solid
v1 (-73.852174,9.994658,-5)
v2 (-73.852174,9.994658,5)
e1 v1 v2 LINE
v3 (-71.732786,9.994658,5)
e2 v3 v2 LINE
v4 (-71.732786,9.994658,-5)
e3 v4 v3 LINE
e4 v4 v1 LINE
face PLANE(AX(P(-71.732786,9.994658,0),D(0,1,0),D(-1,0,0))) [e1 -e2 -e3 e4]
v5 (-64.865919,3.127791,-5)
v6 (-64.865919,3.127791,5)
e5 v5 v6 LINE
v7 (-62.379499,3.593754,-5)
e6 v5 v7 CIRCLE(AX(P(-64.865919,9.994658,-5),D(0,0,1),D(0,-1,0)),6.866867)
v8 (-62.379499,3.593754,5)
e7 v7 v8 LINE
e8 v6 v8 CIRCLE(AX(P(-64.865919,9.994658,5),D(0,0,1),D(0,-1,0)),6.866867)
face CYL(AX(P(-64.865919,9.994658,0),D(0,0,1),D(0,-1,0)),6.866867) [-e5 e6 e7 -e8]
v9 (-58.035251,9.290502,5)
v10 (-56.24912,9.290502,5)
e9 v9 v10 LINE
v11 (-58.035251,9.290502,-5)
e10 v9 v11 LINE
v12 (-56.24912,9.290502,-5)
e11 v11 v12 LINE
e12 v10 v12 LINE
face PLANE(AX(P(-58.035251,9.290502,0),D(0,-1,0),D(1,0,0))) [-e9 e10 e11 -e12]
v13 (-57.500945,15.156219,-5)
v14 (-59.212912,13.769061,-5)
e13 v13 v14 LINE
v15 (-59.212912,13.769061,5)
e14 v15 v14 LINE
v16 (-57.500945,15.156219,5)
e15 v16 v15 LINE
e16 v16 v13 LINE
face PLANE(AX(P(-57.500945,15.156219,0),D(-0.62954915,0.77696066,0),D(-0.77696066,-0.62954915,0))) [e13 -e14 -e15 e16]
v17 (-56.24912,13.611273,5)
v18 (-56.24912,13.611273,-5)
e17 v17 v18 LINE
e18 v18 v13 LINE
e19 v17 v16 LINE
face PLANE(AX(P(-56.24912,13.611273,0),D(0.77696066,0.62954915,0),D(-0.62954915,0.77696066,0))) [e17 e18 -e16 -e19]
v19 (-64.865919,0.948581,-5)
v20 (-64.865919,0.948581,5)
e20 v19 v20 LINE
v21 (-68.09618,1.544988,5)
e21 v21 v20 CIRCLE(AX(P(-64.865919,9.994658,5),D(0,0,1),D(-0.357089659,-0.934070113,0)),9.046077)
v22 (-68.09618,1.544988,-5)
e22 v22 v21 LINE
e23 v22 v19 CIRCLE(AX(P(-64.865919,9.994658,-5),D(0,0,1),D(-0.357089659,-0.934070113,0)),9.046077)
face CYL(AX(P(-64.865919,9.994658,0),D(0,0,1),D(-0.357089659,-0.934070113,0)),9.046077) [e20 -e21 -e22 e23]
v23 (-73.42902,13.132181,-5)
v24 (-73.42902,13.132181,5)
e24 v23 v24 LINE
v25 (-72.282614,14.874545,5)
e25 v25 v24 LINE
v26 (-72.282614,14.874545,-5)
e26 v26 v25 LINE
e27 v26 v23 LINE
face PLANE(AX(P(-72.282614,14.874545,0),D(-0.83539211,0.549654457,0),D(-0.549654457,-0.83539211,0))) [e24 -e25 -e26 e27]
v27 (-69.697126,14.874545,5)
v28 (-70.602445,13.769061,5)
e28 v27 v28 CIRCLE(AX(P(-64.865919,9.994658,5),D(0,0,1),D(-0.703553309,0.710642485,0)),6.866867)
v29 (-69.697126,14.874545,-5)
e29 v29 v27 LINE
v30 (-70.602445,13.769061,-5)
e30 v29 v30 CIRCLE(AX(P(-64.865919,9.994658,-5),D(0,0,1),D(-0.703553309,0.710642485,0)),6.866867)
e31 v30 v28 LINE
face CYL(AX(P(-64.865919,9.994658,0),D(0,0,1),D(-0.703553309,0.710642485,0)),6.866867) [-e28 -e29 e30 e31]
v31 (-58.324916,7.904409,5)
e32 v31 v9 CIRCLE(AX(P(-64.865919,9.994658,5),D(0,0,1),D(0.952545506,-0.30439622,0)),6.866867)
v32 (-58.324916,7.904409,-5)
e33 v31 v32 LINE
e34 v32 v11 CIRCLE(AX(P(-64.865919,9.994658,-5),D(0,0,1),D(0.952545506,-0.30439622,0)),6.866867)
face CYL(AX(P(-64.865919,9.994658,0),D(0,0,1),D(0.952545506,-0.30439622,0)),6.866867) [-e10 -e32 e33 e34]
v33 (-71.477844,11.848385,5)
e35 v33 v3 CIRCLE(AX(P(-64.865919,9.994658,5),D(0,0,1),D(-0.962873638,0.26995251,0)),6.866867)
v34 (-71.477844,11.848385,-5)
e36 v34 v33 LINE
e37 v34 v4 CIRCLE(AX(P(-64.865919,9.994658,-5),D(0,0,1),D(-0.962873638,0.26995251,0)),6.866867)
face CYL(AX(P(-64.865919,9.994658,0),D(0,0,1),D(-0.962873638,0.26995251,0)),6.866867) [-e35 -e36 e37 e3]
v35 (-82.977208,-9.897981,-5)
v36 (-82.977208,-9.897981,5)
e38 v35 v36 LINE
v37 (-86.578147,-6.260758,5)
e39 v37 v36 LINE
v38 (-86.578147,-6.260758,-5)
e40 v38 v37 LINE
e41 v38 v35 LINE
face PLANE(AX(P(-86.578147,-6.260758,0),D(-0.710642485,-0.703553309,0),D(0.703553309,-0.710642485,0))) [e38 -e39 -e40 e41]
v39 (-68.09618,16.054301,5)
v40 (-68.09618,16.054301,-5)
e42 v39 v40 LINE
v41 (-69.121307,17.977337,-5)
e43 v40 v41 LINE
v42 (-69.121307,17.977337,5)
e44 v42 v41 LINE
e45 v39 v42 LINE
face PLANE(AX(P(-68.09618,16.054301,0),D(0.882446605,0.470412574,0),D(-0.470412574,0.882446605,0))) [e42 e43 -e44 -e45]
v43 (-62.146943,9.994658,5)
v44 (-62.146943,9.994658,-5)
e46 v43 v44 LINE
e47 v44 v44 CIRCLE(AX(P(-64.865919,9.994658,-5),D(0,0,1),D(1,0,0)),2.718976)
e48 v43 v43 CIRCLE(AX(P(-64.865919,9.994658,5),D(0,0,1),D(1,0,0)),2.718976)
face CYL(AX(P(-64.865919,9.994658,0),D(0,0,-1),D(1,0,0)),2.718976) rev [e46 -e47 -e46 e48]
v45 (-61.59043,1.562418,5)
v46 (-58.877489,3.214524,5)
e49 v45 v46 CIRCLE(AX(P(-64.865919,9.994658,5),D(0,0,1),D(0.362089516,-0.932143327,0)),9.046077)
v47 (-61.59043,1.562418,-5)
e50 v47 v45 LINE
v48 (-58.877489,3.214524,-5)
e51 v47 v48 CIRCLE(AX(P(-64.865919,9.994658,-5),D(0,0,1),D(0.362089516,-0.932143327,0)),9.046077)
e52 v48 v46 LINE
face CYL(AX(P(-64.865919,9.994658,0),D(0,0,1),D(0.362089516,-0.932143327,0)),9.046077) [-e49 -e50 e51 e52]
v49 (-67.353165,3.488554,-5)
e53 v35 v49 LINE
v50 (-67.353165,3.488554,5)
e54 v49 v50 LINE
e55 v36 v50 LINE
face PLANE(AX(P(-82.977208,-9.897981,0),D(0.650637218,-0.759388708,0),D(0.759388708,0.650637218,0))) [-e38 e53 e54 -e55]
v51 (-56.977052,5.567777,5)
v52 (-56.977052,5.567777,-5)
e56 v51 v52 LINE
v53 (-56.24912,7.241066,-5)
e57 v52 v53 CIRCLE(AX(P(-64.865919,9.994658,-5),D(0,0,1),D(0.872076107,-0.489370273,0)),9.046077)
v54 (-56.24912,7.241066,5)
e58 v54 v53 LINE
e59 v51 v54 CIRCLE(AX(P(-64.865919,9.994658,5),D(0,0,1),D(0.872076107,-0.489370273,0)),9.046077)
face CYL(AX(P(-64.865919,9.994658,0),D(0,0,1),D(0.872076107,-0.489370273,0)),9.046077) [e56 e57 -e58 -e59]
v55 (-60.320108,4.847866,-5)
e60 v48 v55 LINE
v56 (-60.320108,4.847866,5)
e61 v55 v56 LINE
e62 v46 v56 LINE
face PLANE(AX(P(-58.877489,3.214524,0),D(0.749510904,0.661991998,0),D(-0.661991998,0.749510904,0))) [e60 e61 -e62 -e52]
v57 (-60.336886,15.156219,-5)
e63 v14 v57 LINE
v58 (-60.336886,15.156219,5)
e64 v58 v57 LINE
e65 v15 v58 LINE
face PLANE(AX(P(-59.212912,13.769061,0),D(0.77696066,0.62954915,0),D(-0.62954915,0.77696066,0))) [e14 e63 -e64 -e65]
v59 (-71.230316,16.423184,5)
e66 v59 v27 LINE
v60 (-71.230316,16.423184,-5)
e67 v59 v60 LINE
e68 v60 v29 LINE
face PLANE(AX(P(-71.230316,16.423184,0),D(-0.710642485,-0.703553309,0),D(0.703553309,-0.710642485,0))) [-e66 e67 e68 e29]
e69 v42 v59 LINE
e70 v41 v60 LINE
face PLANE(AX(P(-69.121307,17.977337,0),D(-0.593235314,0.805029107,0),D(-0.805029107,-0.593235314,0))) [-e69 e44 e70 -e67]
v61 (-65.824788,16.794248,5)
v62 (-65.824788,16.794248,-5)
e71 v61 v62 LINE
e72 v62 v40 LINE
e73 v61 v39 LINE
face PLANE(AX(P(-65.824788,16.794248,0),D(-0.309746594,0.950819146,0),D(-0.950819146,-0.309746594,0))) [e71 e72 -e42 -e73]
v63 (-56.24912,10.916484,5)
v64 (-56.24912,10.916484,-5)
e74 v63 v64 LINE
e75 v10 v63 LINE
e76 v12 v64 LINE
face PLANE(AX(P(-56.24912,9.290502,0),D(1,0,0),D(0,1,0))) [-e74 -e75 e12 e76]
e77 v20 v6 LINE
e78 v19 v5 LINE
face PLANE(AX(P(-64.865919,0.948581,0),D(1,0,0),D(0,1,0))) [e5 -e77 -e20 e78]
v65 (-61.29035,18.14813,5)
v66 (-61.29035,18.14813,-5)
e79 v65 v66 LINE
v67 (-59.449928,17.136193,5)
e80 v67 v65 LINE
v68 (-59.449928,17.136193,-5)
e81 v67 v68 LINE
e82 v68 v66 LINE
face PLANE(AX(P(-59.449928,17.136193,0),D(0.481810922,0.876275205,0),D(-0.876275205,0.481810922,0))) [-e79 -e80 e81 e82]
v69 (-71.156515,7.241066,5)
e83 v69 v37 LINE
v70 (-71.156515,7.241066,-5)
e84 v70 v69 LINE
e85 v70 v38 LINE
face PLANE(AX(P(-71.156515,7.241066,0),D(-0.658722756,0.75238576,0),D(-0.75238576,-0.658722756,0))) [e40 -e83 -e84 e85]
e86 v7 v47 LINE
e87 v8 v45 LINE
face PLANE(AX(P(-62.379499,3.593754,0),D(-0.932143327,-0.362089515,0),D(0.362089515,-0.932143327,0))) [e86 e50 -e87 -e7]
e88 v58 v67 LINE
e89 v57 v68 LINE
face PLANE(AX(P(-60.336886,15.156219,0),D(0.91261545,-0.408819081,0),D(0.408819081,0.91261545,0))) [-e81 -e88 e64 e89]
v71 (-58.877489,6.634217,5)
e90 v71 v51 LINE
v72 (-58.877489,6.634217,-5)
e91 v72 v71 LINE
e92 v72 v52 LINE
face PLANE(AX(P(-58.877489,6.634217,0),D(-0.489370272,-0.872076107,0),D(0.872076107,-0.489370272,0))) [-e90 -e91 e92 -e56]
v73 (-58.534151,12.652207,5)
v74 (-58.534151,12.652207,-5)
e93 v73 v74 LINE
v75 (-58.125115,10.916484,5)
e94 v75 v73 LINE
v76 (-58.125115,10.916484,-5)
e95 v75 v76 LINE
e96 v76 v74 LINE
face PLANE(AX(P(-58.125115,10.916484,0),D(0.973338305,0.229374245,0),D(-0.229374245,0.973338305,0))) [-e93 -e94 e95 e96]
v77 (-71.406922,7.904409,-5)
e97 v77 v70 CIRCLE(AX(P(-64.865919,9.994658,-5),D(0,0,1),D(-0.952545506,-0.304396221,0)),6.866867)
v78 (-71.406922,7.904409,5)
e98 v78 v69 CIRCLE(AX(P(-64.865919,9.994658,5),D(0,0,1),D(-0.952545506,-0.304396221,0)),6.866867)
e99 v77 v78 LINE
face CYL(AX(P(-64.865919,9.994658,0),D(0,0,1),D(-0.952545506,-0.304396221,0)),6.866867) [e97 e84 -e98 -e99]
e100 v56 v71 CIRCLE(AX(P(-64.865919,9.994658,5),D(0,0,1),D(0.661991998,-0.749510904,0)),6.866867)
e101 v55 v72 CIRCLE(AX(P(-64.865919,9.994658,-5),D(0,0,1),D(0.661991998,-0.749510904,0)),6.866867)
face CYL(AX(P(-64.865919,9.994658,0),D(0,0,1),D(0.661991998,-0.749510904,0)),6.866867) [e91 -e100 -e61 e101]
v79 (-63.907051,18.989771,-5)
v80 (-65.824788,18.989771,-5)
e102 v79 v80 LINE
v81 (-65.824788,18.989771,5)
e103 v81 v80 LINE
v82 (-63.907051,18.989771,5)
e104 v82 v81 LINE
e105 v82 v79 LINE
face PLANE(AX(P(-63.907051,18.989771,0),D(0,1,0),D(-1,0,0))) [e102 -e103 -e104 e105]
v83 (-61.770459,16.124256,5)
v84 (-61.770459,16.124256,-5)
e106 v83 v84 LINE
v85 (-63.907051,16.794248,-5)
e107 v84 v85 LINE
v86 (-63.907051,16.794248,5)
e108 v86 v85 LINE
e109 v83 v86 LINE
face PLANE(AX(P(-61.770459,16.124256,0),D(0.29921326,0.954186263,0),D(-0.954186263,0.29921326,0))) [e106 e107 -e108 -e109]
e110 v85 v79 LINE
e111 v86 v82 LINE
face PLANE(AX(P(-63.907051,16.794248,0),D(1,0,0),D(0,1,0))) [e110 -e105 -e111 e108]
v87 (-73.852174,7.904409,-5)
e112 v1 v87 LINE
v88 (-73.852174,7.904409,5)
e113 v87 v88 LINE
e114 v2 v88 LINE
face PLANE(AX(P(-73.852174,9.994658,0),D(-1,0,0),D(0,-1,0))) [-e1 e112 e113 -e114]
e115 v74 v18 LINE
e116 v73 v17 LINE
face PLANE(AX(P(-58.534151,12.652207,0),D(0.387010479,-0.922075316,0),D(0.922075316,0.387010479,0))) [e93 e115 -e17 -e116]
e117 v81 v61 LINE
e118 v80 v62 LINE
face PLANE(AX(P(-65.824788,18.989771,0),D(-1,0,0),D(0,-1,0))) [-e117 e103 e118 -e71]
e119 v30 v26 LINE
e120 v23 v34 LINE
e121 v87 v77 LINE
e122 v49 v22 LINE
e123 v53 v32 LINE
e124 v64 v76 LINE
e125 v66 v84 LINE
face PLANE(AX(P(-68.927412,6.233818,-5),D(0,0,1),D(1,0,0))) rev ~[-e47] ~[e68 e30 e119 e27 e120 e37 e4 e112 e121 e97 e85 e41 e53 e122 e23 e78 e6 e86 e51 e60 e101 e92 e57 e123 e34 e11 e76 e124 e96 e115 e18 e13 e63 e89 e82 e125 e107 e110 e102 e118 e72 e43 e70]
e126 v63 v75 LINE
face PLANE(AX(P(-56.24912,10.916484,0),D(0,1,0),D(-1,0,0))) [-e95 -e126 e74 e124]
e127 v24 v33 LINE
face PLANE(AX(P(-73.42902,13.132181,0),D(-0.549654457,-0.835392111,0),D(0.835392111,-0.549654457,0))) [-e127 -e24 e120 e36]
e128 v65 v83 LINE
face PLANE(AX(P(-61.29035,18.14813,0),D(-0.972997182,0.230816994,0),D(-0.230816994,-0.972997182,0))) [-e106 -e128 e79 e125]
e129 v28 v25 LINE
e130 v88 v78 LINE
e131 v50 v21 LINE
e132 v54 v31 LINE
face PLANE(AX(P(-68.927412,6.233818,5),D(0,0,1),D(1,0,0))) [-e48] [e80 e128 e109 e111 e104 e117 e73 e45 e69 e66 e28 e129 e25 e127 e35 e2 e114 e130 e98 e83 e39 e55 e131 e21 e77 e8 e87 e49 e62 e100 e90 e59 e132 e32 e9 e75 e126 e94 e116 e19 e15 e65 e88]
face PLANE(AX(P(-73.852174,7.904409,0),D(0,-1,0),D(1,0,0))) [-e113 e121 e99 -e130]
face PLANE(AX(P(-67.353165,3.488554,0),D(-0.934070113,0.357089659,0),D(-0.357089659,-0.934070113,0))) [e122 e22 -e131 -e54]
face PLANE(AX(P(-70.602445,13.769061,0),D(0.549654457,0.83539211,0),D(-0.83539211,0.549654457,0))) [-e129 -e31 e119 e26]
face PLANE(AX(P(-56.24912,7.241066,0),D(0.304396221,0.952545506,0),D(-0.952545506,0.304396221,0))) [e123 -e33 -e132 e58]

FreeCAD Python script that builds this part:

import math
import FreeCAD as App
import Part
import Sketcher
from FreeCAD import Vector

doc = App.newDocument("Part")
body = doc.addObject("PartDesign::Body", "Body")

sketch1 = doc.addObject("Sketcher::SketchObject", "Sketch")
body.addObject(sketch1)
sketch1.AttachmentSupport = (doc.XY_Plane, [""])
sketch1.MapMode = "FlatFace"
sketch1.addGeometry([
    Part.LineSegment(Vector(-71.2, 16.4, 0), Vector(-69.7, 14.9, 0)),
    Part.ArcOfCircle(Part.Circle(Vector(-64.9, 10, 0), Vector(0, 0, 1), 6.9), math.radians(134.71), math.radians(146.66)),
    Part.LineSegment(Vector(-70.6, 13.8, 0), Vector(-72.3, 14.9, 0)),
    Part.LineSegment(Vector(-72.3, 14.9, 0), Vector(-73.4, 13.1, 0)),
    Part.LineSegment(Vector(-73.4, 13.1, 0), Vector(-71.5, 11.8, 0)),
    Part.ArcOfCircle(Part.Circle(Vector(-64.9, 10, 0), Vector(0, 0, 1), 6.9), math.radians(164.34), math.radians(180)),
    Part.LineSegment(Vector(-71.7, 10, 0), Vector(-73.9, 10, 0)),
    Part.LineSegment(Vector(-73.9, 10, 0), Vector(-73.9, 7.9, 0)),
    Part.LineSegment(Vector(-73.9, 7.9, 0), Vector(-71.4, 7.9, 0)),
    Part.ArcOfCircle(Part.Circle(Vector(-64.9, 10, 0), Vector(0, 0, 1), 6.9), math.radians(-162.28), math.radians(-156.36)),
    Part.LineSegment(Vector(-71.2, 7.2, 0), Vector(-86.6, -6.3, 0)),
    Part.LineSegment(Vector(-86.6, -6.3, 0), Vector(-83, -9.9, 0)),
    Part.LineSegment(Vector(-83, -9.9, 0), Vector(-67.4, 3.5, 0)),
    Part.LineSegment(Vector(-67.4, 3.5, 0), Vector(-68.1, 1.5, 0)),
    Part.ArcOfCircle(Part.Circle(Vector(-64.9, 10, 0), Vector(0, 0, 1), 9), math.radians(-111), math.radians(-90)),
    Part.LineSegment(Vector(-64.9, 0.9, 0), Vector(-64.9, 3.1, 0)),
    Part.ArcOfCircle(Part.Circle(Vector(-64.9, 10, 0), Vector(0, 0, 1), 6.9), math.radians(-90), math.radians(-69)),
    Part.LineSegment(Vector(-62.4, 3.6, 0), Vector(-61.6, 1.6, 0)),
    Part.ArcOfCircle(Part.Circle(Vector(-64.9, 10, 0), Vector(0, 0, 1), 9), math.radians(-69), math.radians(-49)),
    Part.LineSegment(Vector(-58.9, 3.2, 0), Vector(-60.3, 4.8, 0)),
    Part.ArcOfCircle(Part.Circle(Vector(-64.9, 10, 0), Vector(0, 0, 1), 6.9), math.radians(-48.55), math.radians(-29.3)),
    Part.LineSegment(Vector(-58.9, 6.6, 0), Vector(-57, 5.6, 0)),
    Part.ArcOfCircle(Part.Circle(Vector(-64.9, 10, 0), Vector(0, 0, 1), 9), math.radians(-29.3), math.radians(-17.72)),
    Part.LineSegment(Vector(-56.2, 7.2, 0), Vector(-58.3, 7.9, 0)),
    Part.ArcOfCircle(Part.Circle(Vector(-64.9, 10, 0), Vector(0, 0, 1), 6.9), math.radians(-17.72), math.radians(-5.89)),
    Part.LineSegment(Vector(-58, 9.3, 0), Vector(-56.2, 9.3, 0)),
    Part.LineSegment(Vector(-56.2, 9.3, 0), Vector(-56.2, 10.9, 0)),
    Part.LineSegment(Vector(-56.2, 10.9, 0), Vector(-58.1, 10.9, 0)),
    Part.LineSegment(Vector(-58.1, 10.9, 0), Vector(-58.5, 12.7, 0)),
    Part.LineSegment(Vector(-58.5, 12.7, 0), Vector(-56.2, 13.6, 0)),
    Part.LineSegment(Vector(-56.2, 13.6, 0), Vector(-57.5, 15.2, 0)),
    Part.LineSegment(Vector(-57.5, 15.2, 0), Vector(-59.2, 13.8, 0)),
    Part.LineSegment(Vector(-59.2, 13.8, 0), Vector(-60.3, 15.2, 0)),
    Part.LineSegment(Vector(-60.3, 15.2, 0), Vector(-59.4, 17.1, 0)),
    Part.LineSegment(Vector(-59.4, 17.1, 0), Vector(-61.3, 18.1, 0)),
    Part.LineSegment(Vector(-61.3, 18.1, 0), Vector(-61.8, 16.1, 0)),
    Part.LineSegment(Vector(-61.8, 16.1, 0), Vector(-63.9, 16.8, 0)),
    Part.LineSegment(Vector(-63.9, 16.8, 0), Vector(-63.9, 19, 0)),
    Part.LineSegment(Vector(-63.9, 19, 0), Vector(-65.8, 19, 0)),
    Part.LineSegment(Vector(-65.8, 19, 0), Vector(-65.8, 16.8, 0)),
    Part.LineSegment(Vector(-65.8, 16.8, 0), Vector(-68.1, 16.1, 0)),
    Part.LineSegment(Vector(-68.1, 16.1, 0), Vector(-69.1, 18, 0)),
    Part.LineSegment(Vector(-69.1, 18, 0), Vector(-71.2, 16.4, 0)),
    Part.Circle(Vector(-64.9, 10, 0), Vector(0, 0, 1), 2.7),
], False)
sketch1.addConstraint([
    Sketcher.Constraint("Coincident", 0, 2, 1, 1),
    Sketcher.Constraint("Coincident", 1, 2, 2, 1),
    Sketcher.Constraint("Coincident", 2, 2, 3, 1),
    Sketcher.Constraint("Coincident", 3, 2, 4, 1),
    Sketcher.Constraint("Coincident", 4, 2, 5, 1),
    Sketcher.Constraint("Coincident", 5, 2, 6, 1),
    Sketcher.Constraint("Coincident", 6, 2, 7, 1),
    Sketcher.Constraint("Coincident", 7, 2, 8, 1),
    Sketcher.Constraint("Coincident", 8, 2, 9, 1),
    Sketcher.Constraint("Coincident", 9, 2, 10, 1),
    Sketcher.Constraint("Coincident", 10, 2, 11, 1),
    Sketcher.Constraint("Coincident", 11, 2, 12, 1),
    Sketcher.Constraint("Coincident", 12, 2, 13, 1),
    Sketcher.Constraint("Coincident", 13, 2, 14, 1),
    Sketcher.Constraint("Coincident", 14, 2, 15, 1),
    Sketcher.Constraint("Coincident", 15, 2, 16, 1),
    Sketcher.Constraint("Coincident", 16, 2, 17, 1),
    Sketcher.Constraint("Coincident", 17, 2, 18, 1),
    Sketcher.Constraint("Coincident", 18, 2, 19, 1),
    Sketcher.Constraint("Coincident", 19, 2, 20, 1),
    Sketcher.Constraint("Coincident", 20, 2, 21, 1),
    Sketcher.Constraint("Coincident", 21, 2, 22, 1),
    Sketcher.Constraint("Coincident", 22, 2, 23, 1),
    Sketcher.Constraint("Coincident", 23, 2, 24, 1),
    Sketcher.Constraint("Coincident", 24, 2, 25, 1),
    Sketcher.Constraint("Coincident", 25, 2, 26, 1),
    Sketcher.Constraint("Coincident", 26, 2, 27, 1),
    Sketcher.Constraint("Coincident", 27, 2, 28, 1),
    Sketcher.Constraint("Coincident", 28, 2, 29, 1),
    Sketcher.Constraint("Coincident", 29, 2, 30, 1),
    Sketcher.Constraint("Coincident", 30, 2, 31, 1),
    Sketcher.Constraint("Coincident", 31, 2, 32, 1),
    Sketcher.Constraint("Coincident", 32, 2, 33, 1),
    Sketcher.Constraint("Coincident", 33, 2, 34, 1),
    Sketcher.Constraint("Coincident", 34, 2, 35, 1),
    Sketcher.Constraint("Coincident", 35, 2, 36, 1),
    Sketcher.Constraint("Coincident", 36, 2, 37, 1),
    Sketcher.Constraint("Coincident", 37, 2, 38, 1),
    Sketcher.Constraint("Coincident", 38, 2, 39, 1),
    Sketcher.Constraint("Coincident", 39, 2, 40, 1),
    Sketcher.Constraint("Coincident", 40, 2, 41, 1),
    Sketcher.Constraint("Coincident", 41, 2, 42, 1),
    Sketcher.Constraint("Coincident", 42, 2, 0, 1),
    Sketcher.Constraint("Horizontal", 6),
    Sketcher.Constraint("Vertical", 7),
    Sketcher.Constraint("Horizontal", 8),
    Sketcher.Constraint("Vertical", 15),
    Sketcher.Constraint("Horizontal", 25),
    Sketcher.Constraint("Vertical", 26),
    Sketcher.Constraint("Horizontal", 27),
    Sketcher.Constraint("Vertical", 37),
    Sketcher.Constraint("Horizontal", 38),
    Sketcher.Constraint("Vertical", 39),
    Sketcher.Constraint("Coincident", 5, 3, 1, 3),
    Sketcher.Constraint("Coincident", 9, 3, 1, 3),
    Sketcher.Constraint("Coincident", 14, 3, 1, 3),
    Sketcher.Constraint("Coincident", 16, 3, 1, 3),
    Sketcher.Constraint("Coincident", 18, 3, 1, 3),
    Sketcher.Constraint("Coincident", 20, 3, 1, 3),
    Sketcher.Constraint("Coincident", 22, 3, 1, 3),
    Sketcher.Constraint("Coincident", 24, 3, 1, 3),
    Sketcher.Constraint("Coincident", 43, 3, 1, 3),
    Sketcher.Constraint("Equal", 1, 5),
    Sketcher.Constraint("Equal", 5, 9),
    Sketcher.Constraint("Equal", 9, 16),
    Sketcher.Constraint("Equal", 14, 18),
    Sketcher.Constraint("Equal", 16, 20),
    Sketcher.Constraint("Equal", 18, 22),
    Sketcher.Constraint("Equal", 20, 24),
    Sketcher.Constraint("Perpendicular", 2, 3),
    Sketcher.Constraint("Perpendicular", 3, 4),
    Sketcher.Constraint("Parallel", 0, 11),
    Sketcher.Constraint("Perpendicular", 30, 31),
    Sketcher.Constraint("Perpendicular", 31, 32),
    Sketcher.Constraint("Horizontal", 0, 2, 2, 2),
    Sketcher.Constraint("Horizontal", 43, 3, 5, 2),
    Sketcher.Constraint("Horizontal", 9, 2, 22, 2),
    Sketcher.Constraint("Horizontal", 8, 2, 23, 2),
    Sketcher.Constraint("Horizontal", 1, 2, 31, 2),
    Sketcher.Constraint("Horizontal", 30, 2, 32, 2),
    Sketcher.Constraint("Horizontal", 36, 2, 39, 2),
    Sketcher.Constraint("Vertical", 43, 3, 14, 2),
    Sketcher.Constraint("Vertical", 18, 2, 20, 2),
    Sketcher.Constraint("Vertical", 22, 2, 25, 2),
    Sketcher.Constraint("Vertical", 26, 2, 29, 2),
    Sketcher.Constraint("Vertical", 13, 2, 40, 2),
    Sketcher.Constraint("Equal", 0, 17),
    Sketcher.Constraint("Equal", 23, 41),
    Sketcher.Constraint("Diameter", 43, 5.437952),
    Sketcher.Constraint("Radius", 1, 6.866867),
    Sketcher.Constraint("Radius", 14, 9.046077),
    Sketcher.Constraint("Distance", 12, 20.5745),
    Sketcher.Constraint("DistanceX", 6, 2, 6, 1, 2.119388),
    Sketcher.Constraint("DistanceX", 8, 1, 8, 2, 2.445252),
    Sketcher.Constraint("DistanceX", 25, 1, 25, 2, 1.786132),
    Sketcher.Constraint("DistanceY", 26, 1, 26, 2, 1.625981),
    Sketcher.Constraint("DistanceX", 16, 2, -1, 1, 62.379499),
    Sketcher.Constraint("DistanceY", -1, 1, 40, 2, 16.054301),
    Sketcher.Constraint("DistanceX", 3, 2, 24, 3, 8.5631),
    Sketcher.Constraint("DistanceX", 4, 2, 1, 2, 0.875399),
    Sketcher.Constraint("DistanceY", 12, 2, 16, 2, 0.105199),
    Sketcher.Constraint("DistanceY", 17, 2, 20, 2, 5.0718),
    Sketcher.Constraint("DistanceY", 19, 2, 22, 2, 2.3932),
    Sketcher.Constraint("DistanceX", 24, 2, 21, 2, 1.058199),
    Sketcher.Constraint("DistanceX", 23, 2, 27, 2, 0.199801),
    Sketcher.Constraint("DistanceX", 28, 2, 24, 2, 0.4989),
    Sketcher.Constraint("DistanceX", 34, 2, 28, 2, 2.756199),
    Sketcher.Constraint("DistanceX", 36, 2, 34, 2, 2.616701),
    Sketcher.Constraint("Distance", 4, 2.33564),
    Sketcher.Constraint("Distance", 13, 2.08075),
    Sketcher.Constraint("Distance", 28, 1.783268),
    Sketcher.Constraint("Distance", 29, 2.47814),
    Sketcher.Constraint("Distance", 30, 1.988448),
    Sketcher.Constraint("Distance", 33, 2.16956),
    Sketcher.Constraint("Distance", 34, 2.100278),
    Sketcher.Constraint("Distance", 35, 2.080041),
    Sketcher.Constraint("Distance", 40, 2.388879),
    Sketcher.Constraint("DistanceX", 27, 2, 27, 1, 1.875996),
    Sketcher.Constraint("DistanceX", 38, 2, 38, 1, 1.917737),
    Sketcher.Constraint("DistanceY", 37, 1, 37, 2, 2.195524),
    Sketcher.Constraint("DistanceX", 1, 3, -1, 1, 64.865919),
    Sketcher.Constraint("DistanceY", -1, 1, 1, 2, 13.769061),
    Sketcher.Constraint("DistanceY", -1, 1, 3, 2, 13.132181),
    Sketcher.Constraint("DistanceY", 10, 2, -1, 1, 6.260758),
    Sketcher.Constraint("DistanceX", 11, 2, -1, 1, 82.977208),
    Sketcher.Constraint("DistanceX", 13, 2, -1, 1, 68.09618),
    Sketcher.Constraint("DistanceX", 17, 2, -1, 1, 61.59043),
    Sketcher.Constraint("DistanceY", -1, 1, 30, 2, 15.156219),
    Sketcher.Constraint("DistanceX", 33, 2, -1, 1, 59.449928),
    Sketcher.Constraint("DistanceX", 35, 2, -1, 1, 61.770459),
    Sketcher.Constraint("DistanceX", 10, 2, 5, 2, 14.845361),
    Sketcher.Constraint("DistanceX", 0, 2, 41, 2, 0.575819),
])
pad1 = doc.addObject("PartDesign::Pad", "Pad")
body.addObject(pad1)
pad1.Profile = sketch1
pad1.Length = 10
pad1.Midplane = True

doc.recompute()
